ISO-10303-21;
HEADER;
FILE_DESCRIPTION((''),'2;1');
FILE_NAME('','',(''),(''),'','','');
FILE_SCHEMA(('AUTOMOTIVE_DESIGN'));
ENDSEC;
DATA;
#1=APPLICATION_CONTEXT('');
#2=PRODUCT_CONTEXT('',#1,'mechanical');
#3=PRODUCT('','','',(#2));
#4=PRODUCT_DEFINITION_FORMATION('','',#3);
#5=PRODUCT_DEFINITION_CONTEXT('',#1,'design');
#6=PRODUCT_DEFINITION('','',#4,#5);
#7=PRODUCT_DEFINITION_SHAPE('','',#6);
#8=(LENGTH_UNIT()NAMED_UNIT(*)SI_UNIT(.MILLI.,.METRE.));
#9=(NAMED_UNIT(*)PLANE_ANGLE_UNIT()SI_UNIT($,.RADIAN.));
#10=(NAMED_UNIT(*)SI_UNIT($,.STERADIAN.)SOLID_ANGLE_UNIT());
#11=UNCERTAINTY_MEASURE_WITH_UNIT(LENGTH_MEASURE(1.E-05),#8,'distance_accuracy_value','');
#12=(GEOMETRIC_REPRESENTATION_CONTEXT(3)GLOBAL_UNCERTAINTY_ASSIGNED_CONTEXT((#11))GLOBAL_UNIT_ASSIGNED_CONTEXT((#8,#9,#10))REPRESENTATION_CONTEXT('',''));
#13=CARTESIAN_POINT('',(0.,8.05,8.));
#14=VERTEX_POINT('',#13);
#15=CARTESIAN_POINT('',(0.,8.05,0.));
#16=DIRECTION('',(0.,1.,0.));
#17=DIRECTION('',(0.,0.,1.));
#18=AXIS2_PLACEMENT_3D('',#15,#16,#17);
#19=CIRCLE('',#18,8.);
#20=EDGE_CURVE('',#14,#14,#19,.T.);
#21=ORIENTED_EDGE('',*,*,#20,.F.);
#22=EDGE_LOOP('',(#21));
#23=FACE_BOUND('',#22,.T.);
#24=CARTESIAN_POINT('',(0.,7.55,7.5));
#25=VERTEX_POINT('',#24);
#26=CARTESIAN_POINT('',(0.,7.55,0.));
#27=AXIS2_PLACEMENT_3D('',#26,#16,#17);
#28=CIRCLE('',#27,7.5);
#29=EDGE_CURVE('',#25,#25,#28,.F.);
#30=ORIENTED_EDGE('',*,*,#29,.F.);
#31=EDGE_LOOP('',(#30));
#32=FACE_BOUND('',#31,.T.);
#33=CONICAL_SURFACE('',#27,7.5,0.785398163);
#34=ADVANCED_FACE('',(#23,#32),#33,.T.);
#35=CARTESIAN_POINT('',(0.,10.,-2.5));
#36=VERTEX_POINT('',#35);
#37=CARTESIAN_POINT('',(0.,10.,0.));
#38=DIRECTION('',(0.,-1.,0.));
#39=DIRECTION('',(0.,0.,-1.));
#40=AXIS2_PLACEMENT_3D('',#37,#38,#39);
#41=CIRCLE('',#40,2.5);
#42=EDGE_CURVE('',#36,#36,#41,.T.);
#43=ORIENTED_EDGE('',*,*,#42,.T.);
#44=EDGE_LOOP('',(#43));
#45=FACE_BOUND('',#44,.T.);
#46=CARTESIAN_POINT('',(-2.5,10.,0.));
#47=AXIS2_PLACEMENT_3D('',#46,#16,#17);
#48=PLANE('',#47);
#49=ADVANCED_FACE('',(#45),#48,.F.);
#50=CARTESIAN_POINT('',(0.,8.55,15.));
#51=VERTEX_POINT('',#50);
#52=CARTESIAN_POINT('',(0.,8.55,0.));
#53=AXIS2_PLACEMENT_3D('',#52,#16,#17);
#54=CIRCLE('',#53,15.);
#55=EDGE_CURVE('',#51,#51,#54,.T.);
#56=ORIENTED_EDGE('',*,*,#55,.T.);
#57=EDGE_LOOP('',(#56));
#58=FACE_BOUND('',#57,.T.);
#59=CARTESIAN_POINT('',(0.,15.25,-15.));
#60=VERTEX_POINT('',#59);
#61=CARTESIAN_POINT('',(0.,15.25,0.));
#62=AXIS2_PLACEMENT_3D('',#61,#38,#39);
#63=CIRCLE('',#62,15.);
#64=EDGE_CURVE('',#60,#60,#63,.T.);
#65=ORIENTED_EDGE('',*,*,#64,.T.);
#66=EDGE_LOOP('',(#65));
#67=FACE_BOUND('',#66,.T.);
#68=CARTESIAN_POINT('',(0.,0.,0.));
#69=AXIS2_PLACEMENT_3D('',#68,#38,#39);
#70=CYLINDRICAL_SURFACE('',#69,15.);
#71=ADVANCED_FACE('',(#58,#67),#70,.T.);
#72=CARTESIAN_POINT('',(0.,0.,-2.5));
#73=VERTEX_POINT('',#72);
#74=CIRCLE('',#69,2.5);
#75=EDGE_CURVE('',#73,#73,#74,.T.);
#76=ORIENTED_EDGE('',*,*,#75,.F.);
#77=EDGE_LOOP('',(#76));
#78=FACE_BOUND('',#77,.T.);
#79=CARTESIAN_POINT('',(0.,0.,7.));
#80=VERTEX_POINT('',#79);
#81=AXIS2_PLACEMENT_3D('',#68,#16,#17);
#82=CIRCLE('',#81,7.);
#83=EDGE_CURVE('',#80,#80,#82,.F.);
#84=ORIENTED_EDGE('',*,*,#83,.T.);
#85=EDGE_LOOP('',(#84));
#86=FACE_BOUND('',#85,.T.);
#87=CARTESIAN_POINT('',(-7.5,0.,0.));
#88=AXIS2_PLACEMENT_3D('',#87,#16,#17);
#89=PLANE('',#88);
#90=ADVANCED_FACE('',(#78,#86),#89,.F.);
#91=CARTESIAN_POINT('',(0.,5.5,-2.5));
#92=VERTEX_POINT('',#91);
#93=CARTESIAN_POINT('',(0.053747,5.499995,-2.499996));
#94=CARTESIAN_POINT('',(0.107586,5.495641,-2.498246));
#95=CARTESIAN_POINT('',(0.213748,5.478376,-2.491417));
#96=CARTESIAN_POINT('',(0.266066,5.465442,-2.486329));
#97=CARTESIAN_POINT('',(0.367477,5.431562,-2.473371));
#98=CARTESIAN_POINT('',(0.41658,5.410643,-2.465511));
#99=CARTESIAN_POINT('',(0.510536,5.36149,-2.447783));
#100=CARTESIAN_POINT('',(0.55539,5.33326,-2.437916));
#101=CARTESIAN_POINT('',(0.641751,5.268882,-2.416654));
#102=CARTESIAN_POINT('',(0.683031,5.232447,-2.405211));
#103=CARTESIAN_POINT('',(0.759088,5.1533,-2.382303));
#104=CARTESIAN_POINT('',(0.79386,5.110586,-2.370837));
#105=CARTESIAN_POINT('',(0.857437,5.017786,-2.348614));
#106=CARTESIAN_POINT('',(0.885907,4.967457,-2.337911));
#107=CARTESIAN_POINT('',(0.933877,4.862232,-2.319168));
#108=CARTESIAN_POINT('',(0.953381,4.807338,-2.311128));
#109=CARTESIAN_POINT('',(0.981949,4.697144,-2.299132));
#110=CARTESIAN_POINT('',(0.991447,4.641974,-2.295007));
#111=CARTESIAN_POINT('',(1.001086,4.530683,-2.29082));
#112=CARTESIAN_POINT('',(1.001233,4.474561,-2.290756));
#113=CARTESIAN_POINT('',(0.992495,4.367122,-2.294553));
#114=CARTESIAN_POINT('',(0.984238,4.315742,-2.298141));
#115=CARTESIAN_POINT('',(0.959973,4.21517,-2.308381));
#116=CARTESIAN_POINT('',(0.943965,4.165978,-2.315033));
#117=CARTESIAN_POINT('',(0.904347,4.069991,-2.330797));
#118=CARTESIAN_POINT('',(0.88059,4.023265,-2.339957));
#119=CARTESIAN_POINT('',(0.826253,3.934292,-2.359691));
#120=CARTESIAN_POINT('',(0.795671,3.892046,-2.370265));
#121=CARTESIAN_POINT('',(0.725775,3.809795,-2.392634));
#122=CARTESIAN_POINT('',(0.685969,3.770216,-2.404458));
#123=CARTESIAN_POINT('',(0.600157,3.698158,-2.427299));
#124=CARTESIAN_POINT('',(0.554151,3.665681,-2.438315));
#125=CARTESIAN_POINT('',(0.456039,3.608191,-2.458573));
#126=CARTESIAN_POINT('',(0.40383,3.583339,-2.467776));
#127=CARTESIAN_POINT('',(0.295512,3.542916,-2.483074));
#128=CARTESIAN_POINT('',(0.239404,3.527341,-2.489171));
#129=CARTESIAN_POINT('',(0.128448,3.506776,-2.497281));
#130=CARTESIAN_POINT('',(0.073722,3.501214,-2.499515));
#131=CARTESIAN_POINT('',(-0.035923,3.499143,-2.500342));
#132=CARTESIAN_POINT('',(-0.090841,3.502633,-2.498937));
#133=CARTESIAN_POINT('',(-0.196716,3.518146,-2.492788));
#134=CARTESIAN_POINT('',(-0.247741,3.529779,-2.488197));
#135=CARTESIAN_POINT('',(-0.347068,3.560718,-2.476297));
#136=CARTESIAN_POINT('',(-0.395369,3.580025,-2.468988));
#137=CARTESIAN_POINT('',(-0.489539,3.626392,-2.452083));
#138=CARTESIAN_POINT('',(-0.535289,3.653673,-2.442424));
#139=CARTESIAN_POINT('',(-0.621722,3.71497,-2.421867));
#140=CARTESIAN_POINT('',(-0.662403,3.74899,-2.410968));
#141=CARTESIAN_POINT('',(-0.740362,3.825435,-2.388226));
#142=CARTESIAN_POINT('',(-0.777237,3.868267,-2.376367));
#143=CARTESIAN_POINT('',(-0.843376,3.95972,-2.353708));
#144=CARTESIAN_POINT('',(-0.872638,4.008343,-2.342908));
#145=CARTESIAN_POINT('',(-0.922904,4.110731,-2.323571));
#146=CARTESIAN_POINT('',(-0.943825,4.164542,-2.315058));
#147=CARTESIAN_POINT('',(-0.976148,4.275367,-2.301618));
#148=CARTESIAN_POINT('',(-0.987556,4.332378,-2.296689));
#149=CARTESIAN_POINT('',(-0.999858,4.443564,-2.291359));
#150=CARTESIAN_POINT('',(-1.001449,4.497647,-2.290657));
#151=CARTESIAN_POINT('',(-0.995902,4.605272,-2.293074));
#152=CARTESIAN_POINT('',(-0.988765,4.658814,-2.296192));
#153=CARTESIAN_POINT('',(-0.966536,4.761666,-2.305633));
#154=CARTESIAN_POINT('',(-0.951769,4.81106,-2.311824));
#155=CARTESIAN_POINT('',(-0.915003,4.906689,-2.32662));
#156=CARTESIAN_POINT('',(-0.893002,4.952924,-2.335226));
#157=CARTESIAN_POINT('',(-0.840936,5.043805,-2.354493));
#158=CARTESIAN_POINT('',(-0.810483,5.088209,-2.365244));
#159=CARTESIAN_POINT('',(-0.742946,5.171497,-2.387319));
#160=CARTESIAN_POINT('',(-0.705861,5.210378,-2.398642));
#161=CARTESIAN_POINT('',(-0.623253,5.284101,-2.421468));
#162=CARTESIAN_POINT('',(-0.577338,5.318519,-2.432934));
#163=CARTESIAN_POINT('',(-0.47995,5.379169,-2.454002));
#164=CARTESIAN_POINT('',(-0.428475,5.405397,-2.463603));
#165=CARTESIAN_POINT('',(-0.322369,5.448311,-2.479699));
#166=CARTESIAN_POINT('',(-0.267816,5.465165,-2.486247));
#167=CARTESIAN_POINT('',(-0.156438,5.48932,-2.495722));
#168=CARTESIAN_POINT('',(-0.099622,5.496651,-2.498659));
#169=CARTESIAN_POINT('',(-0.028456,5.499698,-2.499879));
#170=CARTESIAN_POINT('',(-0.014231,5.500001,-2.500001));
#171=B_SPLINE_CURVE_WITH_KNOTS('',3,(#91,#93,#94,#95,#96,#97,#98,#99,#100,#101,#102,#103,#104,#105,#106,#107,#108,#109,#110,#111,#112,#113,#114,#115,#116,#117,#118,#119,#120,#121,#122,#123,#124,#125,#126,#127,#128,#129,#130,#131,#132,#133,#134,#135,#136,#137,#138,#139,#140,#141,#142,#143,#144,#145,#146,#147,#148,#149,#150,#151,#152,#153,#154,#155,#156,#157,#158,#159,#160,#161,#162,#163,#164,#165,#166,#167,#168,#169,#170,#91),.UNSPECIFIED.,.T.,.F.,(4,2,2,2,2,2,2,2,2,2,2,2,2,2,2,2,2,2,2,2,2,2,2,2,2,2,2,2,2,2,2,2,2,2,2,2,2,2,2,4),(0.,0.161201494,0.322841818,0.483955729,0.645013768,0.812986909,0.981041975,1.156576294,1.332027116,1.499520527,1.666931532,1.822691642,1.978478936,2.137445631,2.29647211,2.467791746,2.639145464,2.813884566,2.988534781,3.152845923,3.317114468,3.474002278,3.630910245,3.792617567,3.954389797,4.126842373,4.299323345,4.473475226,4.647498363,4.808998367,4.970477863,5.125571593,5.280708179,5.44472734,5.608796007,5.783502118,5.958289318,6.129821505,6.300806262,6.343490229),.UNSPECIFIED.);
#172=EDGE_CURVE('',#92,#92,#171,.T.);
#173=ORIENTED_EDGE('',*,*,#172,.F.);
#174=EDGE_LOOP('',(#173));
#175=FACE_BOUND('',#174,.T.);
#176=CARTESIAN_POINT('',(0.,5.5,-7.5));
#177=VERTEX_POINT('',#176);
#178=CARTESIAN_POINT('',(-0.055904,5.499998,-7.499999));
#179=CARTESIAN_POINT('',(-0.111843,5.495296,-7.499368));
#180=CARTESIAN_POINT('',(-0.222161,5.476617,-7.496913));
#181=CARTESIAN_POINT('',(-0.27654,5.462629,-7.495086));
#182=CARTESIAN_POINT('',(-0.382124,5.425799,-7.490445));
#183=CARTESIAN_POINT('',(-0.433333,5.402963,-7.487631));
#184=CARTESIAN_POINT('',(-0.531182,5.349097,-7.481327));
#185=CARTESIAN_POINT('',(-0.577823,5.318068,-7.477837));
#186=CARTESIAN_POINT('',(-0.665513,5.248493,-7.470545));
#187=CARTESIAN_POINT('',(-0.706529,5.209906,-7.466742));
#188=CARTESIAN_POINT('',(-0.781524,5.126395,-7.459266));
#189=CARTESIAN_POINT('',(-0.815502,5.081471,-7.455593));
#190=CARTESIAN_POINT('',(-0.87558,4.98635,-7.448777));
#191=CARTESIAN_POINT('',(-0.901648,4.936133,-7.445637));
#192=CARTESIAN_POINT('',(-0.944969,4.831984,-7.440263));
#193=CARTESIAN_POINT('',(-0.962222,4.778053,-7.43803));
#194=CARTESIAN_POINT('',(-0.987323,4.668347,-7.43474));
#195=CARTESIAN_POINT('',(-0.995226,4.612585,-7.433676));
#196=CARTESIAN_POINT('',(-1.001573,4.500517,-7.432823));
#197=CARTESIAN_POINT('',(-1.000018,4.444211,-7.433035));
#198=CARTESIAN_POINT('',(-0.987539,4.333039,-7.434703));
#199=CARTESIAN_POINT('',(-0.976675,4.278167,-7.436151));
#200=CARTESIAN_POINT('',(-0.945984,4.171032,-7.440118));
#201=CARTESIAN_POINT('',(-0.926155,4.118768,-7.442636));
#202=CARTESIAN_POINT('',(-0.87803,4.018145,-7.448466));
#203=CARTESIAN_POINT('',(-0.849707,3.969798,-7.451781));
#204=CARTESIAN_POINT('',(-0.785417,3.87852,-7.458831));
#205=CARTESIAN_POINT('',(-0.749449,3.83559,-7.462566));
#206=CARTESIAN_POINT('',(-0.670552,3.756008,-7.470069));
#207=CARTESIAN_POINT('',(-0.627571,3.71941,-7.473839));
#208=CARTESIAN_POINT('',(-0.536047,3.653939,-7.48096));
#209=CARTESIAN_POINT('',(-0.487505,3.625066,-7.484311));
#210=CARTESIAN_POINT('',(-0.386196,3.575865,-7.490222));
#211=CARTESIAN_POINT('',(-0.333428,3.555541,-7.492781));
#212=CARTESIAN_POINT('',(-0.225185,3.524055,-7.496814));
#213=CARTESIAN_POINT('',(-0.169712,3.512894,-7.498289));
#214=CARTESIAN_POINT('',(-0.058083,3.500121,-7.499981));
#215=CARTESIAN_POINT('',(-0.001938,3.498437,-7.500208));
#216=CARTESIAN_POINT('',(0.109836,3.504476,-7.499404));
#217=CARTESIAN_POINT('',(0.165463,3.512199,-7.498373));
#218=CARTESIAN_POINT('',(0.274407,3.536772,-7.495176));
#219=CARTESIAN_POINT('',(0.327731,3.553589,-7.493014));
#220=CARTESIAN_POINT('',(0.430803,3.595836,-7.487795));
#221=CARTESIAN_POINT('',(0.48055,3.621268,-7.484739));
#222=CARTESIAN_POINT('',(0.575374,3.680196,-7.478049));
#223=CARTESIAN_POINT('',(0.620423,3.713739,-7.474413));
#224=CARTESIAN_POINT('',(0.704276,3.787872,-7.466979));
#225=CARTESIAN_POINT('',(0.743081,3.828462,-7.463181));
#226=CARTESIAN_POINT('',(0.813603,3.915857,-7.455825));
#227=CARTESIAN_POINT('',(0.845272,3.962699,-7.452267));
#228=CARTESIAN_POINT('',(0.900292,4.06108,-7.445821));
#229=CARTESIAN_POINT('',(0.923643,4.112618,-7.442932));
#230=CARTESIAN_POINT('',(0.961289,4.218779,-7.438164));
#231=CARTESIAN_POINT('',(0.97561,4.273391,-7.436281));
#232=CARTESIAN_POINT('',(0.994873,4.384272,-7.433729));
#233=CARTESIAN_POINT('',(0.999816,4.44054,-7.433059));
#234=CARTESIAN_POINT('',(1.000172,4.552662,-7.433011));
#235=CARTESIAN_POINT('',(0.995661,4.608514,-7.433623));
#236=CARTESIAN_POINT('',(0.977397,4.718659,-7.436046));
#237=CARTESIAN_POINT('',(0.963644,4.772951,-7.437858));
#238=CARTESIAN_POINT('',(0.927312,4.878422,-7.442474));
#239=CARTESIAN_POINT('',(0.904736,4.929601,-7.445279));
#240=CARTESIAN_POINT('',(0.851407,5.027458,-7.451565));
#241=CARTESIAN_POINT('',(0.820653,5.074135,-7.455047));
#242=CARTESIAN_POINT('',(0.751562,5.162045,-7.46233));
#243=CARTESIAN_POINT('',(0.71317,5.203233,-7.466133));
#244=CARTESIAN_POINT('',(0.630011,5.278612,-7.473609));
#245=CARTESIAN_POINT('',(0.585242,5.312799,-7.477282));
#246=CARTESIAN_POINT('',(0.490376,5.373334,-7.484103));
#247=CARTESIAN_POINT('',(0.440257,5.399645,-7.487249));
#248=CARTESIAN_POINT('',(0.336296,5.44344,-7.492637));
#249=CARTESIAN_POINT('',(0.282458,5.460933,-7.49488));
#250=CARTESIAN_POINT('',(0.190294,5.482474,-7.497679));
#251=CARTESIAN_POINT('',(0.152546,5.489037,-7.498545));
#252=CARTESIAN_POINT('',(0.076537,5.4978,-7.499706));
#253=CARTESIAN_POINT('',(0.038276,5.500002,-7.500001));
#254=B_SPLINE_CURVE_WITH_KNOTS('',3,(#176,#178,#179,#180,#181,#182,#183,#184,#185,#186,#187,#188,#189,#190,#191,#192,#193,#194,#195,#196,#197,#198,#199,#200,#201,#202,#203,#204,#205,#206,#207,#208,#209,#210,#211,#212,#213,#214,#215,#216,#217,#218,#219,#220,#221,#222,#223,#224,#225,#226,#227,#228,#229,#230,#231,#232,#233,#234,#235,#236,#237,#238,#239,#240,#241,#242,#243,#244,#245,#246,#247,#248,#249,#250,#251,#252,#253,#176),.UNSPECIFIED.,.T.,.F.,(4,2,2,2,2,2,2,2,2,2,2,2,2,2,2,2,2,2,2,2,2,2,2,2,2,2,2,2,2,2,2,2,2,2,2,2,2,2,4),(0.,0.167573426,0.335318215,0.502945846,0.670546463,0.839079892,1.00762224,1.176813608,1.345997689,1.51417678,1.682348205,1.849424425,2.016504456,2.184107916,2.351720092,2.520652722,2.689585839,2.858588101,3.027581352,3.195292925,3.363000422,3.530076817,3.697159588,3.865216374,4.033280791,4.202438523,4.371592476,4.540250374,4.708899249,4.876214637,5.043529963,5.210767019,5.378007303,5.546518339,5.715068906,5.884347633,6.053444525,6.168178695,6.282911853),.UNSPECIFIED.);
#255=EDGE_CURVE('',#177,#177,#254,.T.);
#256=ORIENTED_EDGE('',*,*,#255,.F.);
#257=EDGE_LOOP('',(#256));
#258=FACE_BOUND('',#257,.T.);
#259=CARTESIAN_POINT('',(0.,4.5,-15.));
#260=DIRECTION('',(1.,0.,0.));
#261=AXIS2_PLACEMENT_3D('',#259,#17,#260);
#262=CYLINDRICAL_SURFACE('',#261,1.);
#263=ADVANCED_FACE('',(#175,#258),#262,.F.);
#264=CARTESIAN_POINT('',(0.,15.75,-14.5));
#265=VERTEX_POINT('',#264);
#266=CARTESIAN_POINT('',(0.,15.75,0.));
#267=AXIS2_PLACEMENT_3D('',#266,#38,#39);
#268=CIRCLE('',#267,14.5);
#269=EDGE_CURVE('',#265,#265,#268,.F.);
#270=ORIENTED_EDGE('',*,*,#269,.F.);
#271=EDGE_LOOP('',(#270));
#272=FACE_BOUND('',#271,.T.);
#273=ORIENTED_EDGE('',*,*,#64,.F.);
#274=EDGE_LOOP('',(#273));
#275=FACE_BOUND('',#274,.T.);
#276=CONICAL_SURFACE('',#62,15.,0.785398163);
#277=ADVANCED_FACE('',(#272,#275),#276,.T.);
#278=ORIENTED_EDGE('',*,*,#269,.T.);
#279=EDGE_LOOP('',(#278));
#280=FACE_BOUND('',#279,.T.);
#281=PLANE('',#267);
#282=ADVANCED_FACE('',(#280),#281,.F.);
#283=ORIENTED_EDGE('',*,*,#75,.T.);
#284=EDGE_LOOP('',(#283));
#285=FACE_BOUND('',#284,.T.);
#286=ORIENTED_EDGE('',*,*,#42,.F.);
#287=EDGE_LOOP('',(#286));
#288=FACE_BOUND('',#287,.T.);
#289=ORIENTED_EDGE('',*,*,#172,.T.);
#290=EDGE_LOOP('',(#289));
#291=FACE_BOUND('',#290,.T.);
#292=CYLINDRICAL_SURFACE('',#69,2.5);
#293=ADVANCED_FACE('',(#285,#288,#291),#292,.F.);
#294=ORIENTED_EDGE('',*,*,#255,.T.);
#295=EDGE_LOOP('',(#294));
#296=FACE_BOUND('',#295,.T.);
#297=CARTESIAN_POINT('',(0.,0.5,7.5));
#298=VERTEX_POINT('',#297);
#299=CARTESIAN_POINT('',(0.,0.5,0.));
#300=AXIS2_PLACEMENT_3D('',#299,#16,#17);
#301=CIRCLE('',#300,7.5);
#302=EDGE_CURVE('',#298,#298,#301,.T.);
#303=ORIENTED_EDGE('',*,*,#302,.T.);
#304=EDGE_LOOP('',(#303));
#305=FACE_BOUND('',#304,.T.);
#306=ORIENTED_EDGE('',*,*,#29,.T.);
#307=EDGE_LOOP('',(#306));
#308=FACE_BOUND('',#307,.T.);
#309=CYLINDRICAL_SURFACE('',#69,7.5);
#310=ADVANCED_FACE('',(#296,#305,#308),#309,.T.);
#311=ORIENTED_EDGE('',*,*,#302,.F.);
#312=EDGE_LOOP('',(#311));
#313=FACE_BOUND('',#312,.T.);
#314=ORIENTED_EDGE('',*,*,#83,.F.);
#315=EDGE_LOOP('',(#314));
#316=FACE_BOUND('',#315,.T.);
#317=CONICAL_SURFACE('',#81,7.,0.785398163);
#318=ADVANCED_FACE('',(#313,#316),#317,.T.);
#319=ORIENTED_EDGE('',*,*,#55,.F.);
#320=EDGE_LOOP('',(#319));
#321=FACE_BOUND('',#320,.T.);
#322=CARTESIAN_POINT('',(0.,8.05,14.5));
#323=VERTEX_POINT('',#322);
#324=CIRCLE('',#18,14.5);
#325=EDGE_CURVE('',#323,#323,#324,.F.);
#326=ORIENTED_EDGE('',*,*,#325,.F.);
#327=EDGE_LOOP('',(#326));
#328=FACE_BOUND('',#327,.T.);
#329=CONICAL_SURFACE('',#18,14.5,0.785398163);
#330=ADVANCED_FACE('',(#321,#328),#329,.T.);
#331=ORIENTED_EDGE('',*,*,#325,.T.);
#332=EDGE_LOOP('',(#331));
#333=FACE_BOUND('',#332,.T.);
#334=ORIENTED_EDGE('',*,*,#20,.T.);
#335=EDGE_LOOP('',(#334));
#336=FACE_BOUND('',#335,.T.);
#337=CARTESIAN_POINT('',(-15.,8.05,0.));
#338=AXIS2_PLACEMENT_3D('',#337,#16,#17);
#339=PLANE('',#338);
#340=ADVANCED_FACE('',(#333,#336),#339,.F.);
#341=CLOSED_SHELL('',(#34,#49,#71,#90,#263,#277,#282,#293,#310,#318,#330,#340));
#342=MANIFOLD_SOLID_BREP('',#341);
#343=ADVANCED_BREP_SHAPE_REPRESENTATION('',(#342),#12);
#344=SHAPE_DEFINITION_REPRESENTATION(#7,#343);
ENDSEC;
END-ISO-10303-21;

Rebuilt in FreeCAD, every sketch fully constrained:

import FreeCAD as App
import Part
import Sketcher

V = App.Vector


def edges_at(feature, points):
    """Names of the edges that pass closest to the given points."""
    edges = feature.Shape.Edges
    near = lambda p: min(range(len(edges)), key=lambda i: edges[i].distToShape(Part.Vertex(*p))[0])
    return sorted({f"Edge{near(p) + 1}" for p in points})

doc = App.newDocument("Part")
body = doc.addObject("PartDesign::Body", "Body")

# Sketch on XY plane
sketch1 = body.newObject("Sketcher::SketchObject", "Sketch")
sketch1.AttachmentSupport = (doc.getObject("XY_Plane"), [""])
sketch1.MapMode = "FlatFace"
sketch1.addGeometry([
    Part.LineSegment(V(0, 15.8, 0), V(-15, 15.8, 0)),  # 0
    Part.LineSegment(V(-15, 15.8, 0), V(-15, 8.1, 0)),  # 1
    Part.LineSegment(V(-15, 8.1, 0), V(-7.5, 8.1, 0)),  # 2
    Part.LineSegment(V(-7.5, 8.1, 0), V(-7.5, 0, 0)),  # 3
    Part.LineSegment(V(-7.5, 0, 0), V(-2.5, 0, 0)),  # 4
    Part.LineSegment(V(-2.5, 0, 0), V(-2.5, 10, 0)),  # 5
    Part.LineSegment(V(-2.5, 10, 0), V(0, 10, 0)),  # 6
    Part.LineSegment(V(0, 10, 0), V(0, 15.8, 0)),  # 7
], False)
sketch1.addConstraint([
    Sketcher.Constraint("Coincident", 0, 2, 1, 1),
    Sketcher.Constraint("Coincident", 1, 2, 2, 1),
    Sketcher.Constraint("Coincident", 2, 2, 3, 1),
    Sketcher.Constraint("Coincident", 3, 2, 4, 1),
    Sketcher.Constraint("Coincident", 4, 2, 5, 1),
    Sketcher.Constraint("Coincident", 5, 2, 6, 1),
    Sketcher.Constraint("Coincident", 6, 2, 7, 1),
    Sketcher.Constraint("Coincident", 7, 2, 0, 1),
    Sketcher.Constraint("Horizontal", 0),
    Sketcher.Constraint("Vertical", 1),
    Sketcher.Constraint("Horizontal", 2),
    Sketcher.Constraint("Vertical", 3),
    Sketcher.Constraint("Horizontal", 4),
    Sketcher.Constraint("Vertical", 5),
    Sketcher.Constraint("Horizontal", 6),
    Sketcher.Constraint("Vertical", 7),
    Sketcher.Constraint("PointOnObject", 3, 2, -1),
    Sketcher.Constraint("PointOnObject", 6, 2, -2),
    Sketcher.Constraint("DistanceX", 0, 2, 0, 1, 15.0),
    Sketcher.Constraint("DistanceX", 4, 1, 4, 2, 5.0),
    Sketcher.Constraint("DistanceY", 5, 1, 5, 2, 10.0),
    Sketcher.Constraint("DistanceX", 2, 1, 2, 2, 7.5),
    Sketcher.Constraint("DistanceY", 1, 2, 1, 1, 7.7),
    Sketcher.Constraint("DistanceY", 3, 2, 3, 1, 8.05),
])
revolution = body.newObject("PartDesign::Revolution", "Revolution")
revolution.Profile = sketch1
revolution.ReferenceAxis = (sketch1, ["V_Axis"])
revolution.Angle = 360
doc.recompute()

chamfer = body.newObject("PartDesign::Chamfer", "Chamfer")
chamfer.Base = (revolution, edges_at(revolution, [
    (0, 0, 7.5),
    (0, 8.05, 7.5),
    (0, 8.05, 15),
    (0, 15.75, 15),
]))
chamfer.Size = 0.5

# Sketch on XY plane
sketch2 = body.newObject("Sketcher::SketchObject", "Sketch001")
sketch2.AttachmentSupport = (doc.getObject("XY_Plane"), [""])
sketch2.MapMode = "FlatFace"
sketch2.addGeometry(Part.Circle(V(0, 4.5, 0), V(0, 0, 1), 1), False)
sketch2.addConstraint([
    Sketcher.Constraint("PointOnObject", 0, 3, -2),
    Sketcher.Constraint("Diameter", 0, 2.0),
    Sketcher.Constraint("DistanceY", -1, 1, 0, 3, 4.5),
])
pocket1 = body.newObject("PartDesign::Pocket", "Pocket")
pocket1.Profile = sketch2
pocket1.Type = "ThroughAll"

doc.recompute()
